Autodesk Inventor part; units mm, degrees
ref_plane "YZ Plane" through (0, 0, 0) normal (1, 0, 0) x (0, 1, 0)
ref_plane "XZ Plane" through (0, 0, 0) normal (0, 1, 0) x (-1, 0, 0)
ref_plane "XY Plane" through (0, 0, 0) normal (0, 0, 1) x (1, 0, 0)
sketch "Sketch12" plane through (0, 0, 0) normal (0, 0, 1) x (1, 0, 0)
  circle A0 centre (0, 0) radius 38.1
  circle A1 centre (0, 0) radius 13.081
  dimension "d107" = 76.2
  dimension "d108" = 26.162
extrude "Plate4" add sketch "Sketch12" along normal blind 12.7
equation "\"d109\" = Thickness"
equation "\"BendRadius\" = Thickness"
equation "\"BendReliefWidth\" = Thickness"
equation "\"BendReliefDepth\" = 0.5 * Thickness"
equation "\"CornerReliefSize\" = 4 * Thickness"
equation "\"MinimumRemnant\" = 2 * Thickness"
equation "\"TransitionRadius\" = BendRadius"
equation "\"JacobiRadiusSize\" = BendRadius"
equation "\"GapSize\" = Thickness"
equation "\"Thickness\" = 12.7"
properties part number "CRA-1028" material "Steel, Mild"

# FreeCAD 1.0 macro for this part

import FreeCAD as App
import Part
import Sketcher
Q = App.Units.Quantity

doc = App.newDocument("Part")
body = doc.addObject("PartDesign::Body", "Body")

# Sketch on XY plane
sketch1 = body.newObject("Sketcher::SketchObject", "Sketch")
sketch1.AttachmentSupport = (doc.getObject("XY_Plane"), [""])
sketch1.MapMode = "FlatFace"
sketch1.addGeometry([
    Part.Circle(App.Vector(0, 0, 0), App.Vector(0, 0, 1), 38),
    Part.Circle(App.Vector(0, 0, 0), App.Vector(0, 0, 1), 13),
], False)
sketch1.addConstraint([
    Sketcher.Constraint("Coincident", 0, 3, -1, 1),
    Sketcher.Constraint("Coincident", 1, 3, -1, 1),
    Sketcher.Constraint("Diameter", 0, Q("3 in")),
    Sketcher.Constraint("Diameter", 1, Q("1.03 in")),
])
pad1 = body.newObject("PartDesign::Pad", "Pad")
pad1.Profile = sketch1
pad1.Length = Q("0.5 in")

doc.recompute()
